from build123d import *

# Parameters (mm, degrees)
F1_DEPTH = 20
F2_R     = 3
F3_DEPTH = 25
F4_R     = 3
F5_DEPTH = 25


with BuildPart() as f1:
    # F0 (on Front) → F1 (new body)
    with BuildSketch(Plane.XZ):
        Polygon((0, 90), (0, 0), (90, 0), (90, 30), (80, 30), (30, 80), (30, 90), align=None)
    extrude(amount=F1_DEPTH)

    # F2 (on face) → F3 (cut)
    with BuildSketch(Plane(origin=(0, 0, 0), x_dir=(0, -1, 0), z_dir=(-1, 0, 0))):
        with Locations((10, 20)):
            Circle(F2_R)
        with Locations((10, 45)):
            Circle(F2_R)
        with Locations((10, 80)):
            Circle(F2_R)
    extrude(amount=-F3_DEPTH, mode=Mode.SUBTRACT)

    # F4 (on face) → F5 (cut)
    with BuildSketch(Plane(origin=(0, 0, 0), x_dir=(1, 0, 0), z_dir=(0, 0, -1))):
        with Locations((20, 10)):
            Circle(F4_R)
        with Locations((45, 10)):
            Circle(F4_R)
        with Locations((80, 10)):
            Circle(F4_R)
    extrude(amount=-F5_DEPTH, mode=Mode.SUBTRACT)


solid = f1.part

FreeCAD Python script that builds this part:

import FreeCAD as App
import Part
import Sketcher

V = App.Vector


def add_polygon(sketch, points):
    """Adds a closed chain of lines whose ends are joined by coincident constraints."""
    first, n = sketch.GeometryCount, len(points)
    for a, b in zip(points, points[1:] + points[:1]):
        sketch.addGeometry(Part.LineSegment(App.Vector(*a, 0), App.Vector(*b, 0)), False)
    for i in range(n):
        sketch.addConstraint(Sketcher.Constraint("Coincident", first + i, 2, first + (i + 1) % n, 1))

doc = App.newDocument("Part")
body = doc.addObject("PartDesign::Body", "Body")

sketch1 = body.newObject("Sketcher::SketchObject", "Sketch")
sketch1.AttachmentSupport = (doc.getObject("XZ_Plane"), [""])
sketch1.MapMode = "FlatFace"
add_polygon(sketch1, [(0, 90), (0, 0), (90, 0), (90, 30), (80, 30), (30, 80), (30, 90)])
sketch1.addConstraint([
    Sketcher.Constraint("Vertical", 0),
    Sketcher.Constraint("Horizontal", 1),
    Sketcher.Constraint("Vertical", 2),
    Sketcher.Constraint("Horizontal", 3),
    Sketcher.Constraint("Vertical", 5),
    Sketcher.Constraint("Horizontal", 6),
    Sketcher.Constraint("Coincident", 0, 2, -1, 1),
    Sketcher.Constraint("Equal", 1, 0),
    Sketcher.Constraint("Equal", 6, 2),
    Sketcher.Constraint("Equal", 3, 5),
    Sketcher.Constraint("DistanceX", 1, 1, 1, 2, 90.0),
    Sketcher.Constraint("DistanceX", 3, 2, 3, 1, 10.0),
    Sketcher.Constraint("DistanceX", 6, 2, 6, 1, 30.0),
])
pad1 = body.newObject("PartDesign::Pad", "Pad")
pad1.Profile = sketch1
pad1.Length = 20

sketch2 = body.newObject("Sketcher::SketchObject", "Sketch001")
sketch2.AttachmentSupport = (doc.getObject("YZ_Plane"), [""])
sketch2.MapMode = "FlatFace"
sketch2.addGeometry([
    Part.Circle(V(-10, 20, 0), V(0, 0, 1), 3),
    Part.Circle(V(-10, 45, 0), V(0, 0, 1), 3),
    Part.Circle(V(-10, 80, 0), V(0, 0, 1), 3),
], False)
sketch2.addConstraint([
    Sketcher.Constraint("Equal", 0, 1),
    Sketcher.Constraint("Equal", 1, 2),
    Sketcher.Constraint("Vertical", 0, 3, 1, 3),
    Sketcher.Constraint("Vertical", 1, 3, 2, 3),
    Sketcher.Constraint("Diameter", 0, 6.0),
    Sketcher.Constraint("DistanceX", 0, 3, -1, 1, 10.0),
    Sketcher.Constraint("DistanceY", -1, 1, 0, 3, 20.0),
    Sketcher.Constraint("DistanceY", -1, 1, 1, 3, 45.0),
    Sketcher.Constraint("DistanceY", -1, 1, 2, 3, 80.0),
])
pocket1 = body.newObject("PartDesign::Pocket", "Pocket")
pocket1.Profile = sketch2
pocket1.Length = 25
pocket1.Reversed = True

sketch3 = body.newObject("Sketcher::SketchObject", "Sketch002")
sketch3.AttachmentSupport = (doc.getObject("XY_Plane"), [""])
sketch3.MapMode = "FlatFace"
sketch3.addGeometry([
    Part.Circle(V(20, -10, 0), V(0, 0, 1), 3),
    Part.Circle(V(45, -10, 0), V(0, 0, 1), 3),
    Part.Circle(V(80, -10, 0), V(0, 0, 1), 3),
], False)
sketch3.addConstraint([
    Sketcher.Constraint("Equal", 0, 1),
    Sketcher.Constraint("Equal", 1, 2),
    Sketcher.Constraint("Horizontal", 0, 3, 1, 3),
    Sketcher.Constraint("Horizontal", 1, 3, 2, 3),
    Sketcher.Constraint("Diameter", 0, 6.0),
    Sketcher.Constraint("DistanceX", -1, 1, 0, 3, 20.0),
    Sketcher.Constraint("DistanceY", 0, 3, -1, 1, 10.0),
    Sketcher.Constraint("DistanceX", -1, 1, 1, 3, 45.0),
    Sketcher.Constraint("DistanceX", -1, 1, 2, 3, 80.0),
])
pocket2 = body.newObject("PartDesign::Pocket", "Pocket001")
pocket2.Profile = sketch3
pocket2.Length = 25
pocket2.Reversed = True

doc.recompute()
